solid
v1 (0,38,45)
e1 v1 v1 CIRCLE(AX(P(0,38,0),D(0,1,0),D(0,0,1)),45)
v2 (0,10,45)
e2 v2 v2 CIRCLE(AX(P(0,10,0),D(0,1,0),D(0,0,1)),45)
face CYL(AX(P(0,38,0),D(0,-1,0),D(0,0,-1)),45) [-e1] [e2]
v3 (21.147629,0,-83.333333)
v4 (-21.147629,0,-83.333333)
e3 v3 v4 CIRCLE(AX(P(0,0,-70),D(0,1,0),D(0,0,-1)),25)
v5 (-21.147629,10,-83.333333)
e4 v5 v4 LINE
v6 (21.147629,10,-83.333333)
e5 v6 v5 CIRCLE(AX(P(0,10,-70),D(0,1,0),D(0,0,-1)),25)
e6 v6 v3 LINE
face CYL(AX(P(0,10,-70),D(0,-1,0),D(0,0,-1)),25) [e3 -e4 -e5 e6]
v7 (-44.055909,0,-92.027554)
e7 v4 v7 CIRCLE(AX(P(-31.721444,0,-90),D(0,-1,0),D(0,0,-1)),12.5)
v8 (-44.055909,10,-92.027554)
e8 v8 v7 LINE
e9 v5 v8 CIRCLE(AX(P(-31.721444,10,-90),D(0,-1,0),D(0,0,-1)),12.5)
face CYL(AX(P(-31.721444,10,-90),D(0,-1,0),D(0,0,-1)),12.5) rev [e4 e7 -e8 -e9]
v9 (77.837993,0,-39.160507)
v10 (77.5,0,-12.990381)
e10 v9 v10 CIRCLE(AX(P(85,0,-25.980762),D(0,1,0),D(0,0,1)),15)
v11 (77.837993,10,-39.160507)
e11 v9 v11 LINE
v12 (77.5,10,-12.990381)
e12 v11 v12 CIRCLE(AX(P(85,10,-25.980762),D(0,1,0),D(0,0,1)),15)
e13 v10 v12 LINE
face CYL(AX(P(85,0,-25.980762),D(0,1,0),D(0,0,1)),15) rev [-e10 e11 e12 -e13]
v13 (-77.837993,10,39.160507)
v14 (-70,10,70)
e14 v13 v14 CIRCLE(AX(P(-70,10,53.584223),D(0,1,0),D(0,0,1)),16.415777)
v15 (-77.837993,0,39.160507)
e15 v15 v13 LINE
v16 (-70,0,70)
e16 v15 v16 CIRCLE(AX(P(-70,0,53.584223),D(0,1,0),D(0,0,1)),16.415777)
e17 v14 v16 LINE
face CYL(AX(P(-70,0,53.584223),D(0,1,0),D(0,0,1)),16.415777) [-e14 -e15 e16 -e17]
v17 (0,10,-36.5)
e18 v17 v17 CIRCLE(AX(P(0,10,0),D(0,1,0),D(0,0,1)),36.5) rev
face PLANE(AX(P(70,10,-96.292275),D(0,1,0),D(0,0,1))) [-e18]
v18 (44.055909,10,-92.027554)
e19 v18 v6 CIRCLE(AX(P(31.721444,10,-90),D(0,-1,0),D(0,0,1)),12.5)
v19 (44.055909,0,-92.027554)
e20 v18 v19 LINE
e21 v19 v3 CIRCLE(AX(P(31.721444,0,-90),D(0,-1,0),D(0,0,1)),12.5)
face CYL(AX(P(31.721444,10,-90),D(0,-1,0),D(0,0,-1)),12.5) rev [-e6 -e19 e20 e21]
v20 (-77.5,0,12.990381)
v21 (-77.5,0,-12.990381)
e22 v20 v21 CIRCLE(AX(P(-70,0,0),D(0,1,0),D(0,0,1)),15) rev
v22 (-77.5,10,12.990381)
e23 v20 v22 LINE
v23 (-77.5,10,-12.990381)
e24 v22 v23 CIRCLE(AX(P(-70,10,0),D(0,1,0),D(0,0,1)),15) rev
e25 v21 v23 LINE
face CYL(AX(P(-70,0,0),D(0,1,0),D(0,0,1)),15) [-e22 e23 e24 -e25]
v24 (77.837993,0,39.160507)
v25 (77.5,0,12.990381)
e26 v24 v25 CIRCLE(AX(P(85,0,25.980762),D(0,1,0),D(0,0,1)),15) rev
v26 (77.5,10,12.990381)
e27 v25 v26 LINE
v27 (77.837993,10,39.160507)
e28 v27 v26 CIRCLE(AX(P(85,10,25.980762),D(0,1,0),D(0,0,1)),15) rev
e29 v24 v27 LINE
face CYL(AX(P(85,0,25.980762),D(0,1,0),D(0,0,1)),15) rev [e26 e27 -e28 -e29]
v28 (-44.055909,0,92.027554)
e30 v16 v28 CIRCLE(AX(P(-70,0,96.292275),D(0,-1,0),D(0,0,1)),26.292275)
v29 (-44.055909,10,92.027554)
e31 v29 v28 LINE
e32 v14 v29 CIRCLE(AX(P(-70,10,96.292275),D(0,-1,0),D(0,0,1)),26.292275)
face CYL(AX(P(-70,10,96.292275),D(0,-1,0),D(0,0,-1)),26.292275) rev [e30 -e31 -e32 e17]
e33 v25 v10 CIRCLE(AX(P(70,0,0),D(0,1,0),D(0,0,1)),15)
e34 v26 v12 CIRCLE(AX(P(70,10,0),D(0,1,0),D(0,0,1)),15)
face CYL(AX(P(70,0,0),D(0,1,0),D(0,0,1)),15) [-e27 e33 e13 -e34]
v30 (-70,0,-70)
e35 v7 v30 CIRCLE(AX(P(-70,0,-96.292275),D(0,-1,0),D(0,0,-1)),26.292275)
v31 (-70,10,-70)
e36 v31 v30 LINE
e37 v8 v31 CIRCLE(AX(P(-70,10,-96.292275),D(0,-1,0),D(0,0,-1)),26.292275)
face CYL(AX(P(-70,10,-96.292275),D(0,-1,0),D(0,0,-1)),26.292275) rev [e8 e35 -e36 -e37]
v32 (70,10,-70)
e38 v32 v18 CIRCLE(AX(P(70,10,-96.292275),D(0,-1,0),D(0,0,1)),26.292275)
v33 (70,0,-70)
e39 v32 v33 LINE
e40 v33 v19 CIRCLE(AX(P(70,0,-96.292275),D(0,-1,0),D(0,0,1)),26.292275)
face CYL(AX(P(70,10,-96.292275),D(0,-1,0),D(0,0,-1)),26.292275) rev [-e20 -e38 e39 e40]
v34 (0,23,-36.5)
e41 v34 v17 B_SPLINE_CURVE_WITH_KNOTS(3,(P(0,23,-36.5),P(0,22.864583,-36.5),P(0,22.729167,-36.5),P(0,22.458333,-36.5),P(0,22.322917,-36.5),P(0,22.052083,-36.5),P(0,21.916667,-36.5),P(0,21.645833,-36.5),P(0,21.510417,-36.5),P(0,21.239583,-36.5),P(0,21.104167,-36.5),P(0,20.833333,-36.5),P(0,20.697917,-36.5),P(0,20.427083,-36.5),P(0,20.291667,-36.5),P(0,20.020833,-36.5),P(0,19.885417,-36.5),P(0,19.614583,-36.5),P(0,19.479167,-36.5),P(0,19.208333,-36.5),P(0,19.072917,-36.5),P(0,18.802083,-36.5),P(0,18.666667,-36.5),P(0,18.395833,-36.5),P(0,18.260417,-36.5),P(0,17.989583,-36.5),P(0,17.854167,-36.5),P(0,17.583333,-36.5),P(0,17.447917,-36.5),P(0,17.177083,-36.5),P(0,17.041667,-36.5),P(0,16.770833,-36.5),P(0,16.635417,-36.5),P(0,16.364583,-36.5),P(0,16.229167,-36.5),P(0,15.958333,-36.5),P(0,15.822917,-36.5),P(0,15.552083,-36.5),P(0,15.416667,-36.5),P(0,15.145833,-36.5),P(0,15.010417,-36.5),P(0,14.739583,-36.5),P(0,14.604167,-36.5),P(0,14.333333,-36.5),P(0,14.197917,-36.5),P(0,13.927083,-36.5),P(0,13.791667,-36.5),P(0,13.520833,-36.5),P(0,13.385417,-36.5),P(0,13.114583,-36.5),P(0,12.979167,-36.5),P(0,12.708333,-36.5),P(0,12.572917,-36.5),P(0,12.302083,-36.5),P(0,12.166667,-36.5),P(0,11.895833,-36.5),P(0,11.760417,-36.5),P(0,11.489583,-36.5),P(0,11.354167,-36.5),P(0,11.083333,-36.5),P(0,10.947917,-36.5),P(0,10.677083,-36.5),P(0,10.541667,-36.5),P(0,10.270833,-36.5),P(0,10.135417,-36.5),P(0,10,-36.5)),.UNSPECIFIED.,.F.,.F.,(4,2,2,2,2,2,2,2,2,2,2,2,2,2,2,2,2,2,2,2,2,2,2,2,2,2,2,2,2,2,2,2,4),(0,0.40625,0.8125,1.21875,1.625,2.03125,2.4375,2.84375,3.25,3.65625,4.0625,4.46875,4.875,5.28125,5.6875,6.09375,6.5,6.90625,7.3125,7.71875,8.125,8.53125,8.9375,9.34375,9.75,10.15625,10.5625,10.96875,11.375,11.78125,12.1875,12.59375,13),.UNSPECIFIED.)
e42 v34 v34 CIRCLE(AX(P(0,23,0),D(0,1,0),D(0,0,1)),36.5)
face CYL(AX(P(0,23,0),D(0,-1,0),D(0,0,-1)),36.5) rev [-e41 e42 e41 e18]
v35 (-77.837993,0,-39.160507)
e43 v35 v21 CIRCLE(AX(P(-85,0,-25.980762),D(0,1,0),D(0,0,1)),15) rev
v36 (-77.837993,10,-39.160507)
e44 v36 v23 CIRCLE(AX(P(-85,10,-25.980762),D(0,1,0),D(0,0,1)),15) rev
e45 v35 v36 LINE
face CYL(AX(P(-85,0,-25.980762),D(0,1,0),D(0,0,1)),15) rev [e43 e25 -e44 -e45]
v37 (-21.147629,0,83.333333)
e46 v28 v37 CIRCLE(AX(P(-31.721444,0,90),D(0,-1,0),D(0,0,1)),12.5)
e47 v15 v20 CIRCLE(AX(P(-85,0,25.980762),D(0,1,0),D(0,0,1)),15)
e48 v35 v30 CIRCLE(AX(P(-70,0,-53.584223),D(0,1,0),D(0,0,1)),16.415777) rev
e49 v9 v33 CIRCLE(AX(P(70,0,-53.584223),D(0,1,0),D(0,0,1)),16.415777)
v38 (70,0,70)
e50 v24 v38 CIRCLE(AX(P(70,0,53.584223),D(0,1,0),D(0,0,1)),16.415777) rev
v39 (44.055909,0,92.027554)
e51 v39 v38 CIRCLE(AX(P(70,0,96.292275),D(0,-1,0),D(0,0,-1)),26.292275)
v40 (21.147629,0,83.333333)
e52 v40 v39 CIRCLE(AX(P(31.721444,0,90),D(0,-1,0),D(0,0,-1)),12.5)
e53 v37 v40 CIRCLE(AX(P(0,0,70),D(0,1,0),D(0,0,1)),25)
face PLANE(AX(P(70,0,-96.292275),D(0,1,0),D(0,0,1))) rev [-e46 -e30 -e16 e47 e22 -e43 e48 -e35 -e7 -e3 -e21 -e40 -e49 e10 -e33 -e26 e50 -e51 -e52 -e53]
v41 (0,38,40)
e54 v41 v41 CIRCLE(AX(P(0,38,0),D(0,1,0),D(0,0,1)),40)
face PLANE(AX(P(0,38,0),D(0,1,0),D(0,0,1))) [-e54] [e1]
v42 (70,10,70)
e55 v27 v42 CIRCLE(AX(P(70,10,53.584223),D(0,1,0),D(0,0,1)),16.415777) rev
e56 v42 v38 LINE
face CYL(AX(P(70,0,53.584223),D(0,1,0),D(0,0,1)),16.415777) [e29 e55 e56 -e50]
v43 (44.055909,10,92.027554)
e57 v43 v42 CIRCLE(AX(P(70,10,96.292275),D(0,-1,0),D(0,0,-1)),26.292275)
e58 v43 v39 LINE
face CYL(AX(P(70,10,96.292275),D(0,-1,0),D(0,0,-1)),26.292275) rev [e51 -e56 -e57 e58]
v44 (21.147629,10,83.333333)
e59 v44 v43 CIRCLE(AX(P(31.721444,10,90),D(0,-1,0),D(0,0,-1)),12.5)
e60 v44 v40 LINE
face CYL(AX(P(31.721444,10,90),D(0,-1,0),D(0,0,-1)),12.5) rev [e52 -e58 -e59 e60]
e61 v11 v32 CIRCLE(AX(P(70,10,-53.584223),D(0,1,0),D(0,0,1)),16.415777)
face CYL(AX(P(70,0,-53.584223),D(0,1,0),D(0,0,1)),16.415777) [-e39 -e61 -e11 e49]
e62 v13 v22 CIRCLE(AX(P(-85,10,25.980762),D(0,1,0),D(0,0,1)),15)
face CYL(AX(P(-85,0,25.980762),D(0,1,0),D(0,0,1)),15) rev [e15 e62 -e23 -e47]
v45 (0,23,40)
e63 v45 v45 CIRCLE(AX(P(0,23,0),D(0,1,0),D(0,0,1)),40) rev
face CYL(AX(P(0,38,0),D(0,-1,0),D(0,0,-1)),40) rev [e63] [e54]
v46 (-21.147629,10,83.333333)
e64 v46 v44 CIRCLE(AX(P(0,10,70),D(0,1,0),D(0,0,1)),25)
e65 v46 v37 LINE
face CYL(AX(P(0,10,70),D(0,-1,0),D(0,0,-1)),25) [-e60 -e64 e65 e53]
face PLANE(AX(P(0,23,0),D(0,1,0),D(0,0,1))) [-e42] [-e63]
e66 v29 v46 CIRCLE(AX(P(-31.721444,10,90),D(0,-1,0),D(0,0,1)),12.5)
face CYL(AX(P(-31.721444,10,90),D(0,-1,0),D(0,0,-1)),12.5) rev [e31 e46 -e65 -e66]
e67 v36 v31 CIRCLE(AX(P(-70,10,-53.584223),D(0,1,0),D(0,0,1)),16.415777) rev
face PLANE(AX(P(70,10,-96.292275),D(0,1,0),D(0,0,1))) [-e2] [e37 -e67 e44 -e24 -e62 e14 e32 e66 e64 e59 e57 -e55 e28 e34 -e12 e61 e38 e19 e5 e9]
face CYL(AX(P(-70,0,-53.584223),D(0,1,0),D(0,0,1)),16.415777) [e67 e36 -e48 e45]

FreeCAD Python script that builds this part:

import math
import FreeCAD as App
import Part
import Sketcher
from FreeCAD import Vector

doc = App.newDocument("Part")
body = doc.addObject("PartDesign::Body", "Body")

# Sketch on XZ plane
sketch1 = doc.addObject("Sketcher::SketchObject", "Sketch")
body.addObject(sketch1)
sketch1.AttachmentSupport = (doc.XZ_Plane, [""])
sketch1.MapMode = "FlatFace"
sketch1.addGeometry(Part.LineSegment(Vector(-70, -70, 0), Vector(-70, 70, 0)), False)
sketch1.addGeometry(Part.ArcOfCircle(Part.Circle(Vector(-70, 96.292275, 0), Vector(0, 0, 1), 26.292275), math.radians(-90), math.radians(-9.334866)), False)
sketch1.addGeometry(Part.ArcOfCircle(Part.Circle(Vector(-31.721444, 90, 0), Vector(0, 0, 1), 12.5), math.radians(170.665134), math.radians(327.769047)), False)
sketch1.addGeometry(Part.ArcOfCircle(Part.Circle(Vector(0, 70, 0), Vector(0, 0, 1), 25), math.radians(32.230953), math.radians(147.769047)), False)
sketch1.addGeometry(Part.ArcOfCircle(Part.Circle(Vector(31.721444, 90, 0), Vector(0, 0, 1), 12.5), math.radians(-147.769047), math.radians(9.334866)), False)
sketch1.addGeometry(Part.ArcOfCircle(Part.Circle(Vector(70, 96.292275, 0), Vector(0, 0, 1), 26.292275), math.radians(-170.665134), math.radians(-90)), False)
sketch1.addGeometry(Part.LineSegment(Vector(70, 70, 0), Vector(70, -70, 0)), False)
sketch1.addGeometry(Part.ArcOfCircle(Part.Circle(Vector(70, -96.292275, 0), Vector(0, 0, 1), 26.292275), math.radians(90), math.radians(170.665134)), False)
sketch1.addGeometry(Part.ArcOfCircle(Part.Circle(Vector(31.721444, -90, 0), Vector(0, 0, 1), 12.5), math.radians(-9.334866), math.radians(147.769047)), False)
sketch1.addGeometry(Part.ArcOfCircle(Part.Circle(Vector(0, -70, 0), Vector(0, 0, 1), 25), math.radians(-147.769047), math.radians(-32.230953)), False)
sketch1.addGeometry(Part.ArcOfCircle(Part.Circle(Vector(-31.721444, -90, 0), Vector(0, 0, 1), 12.5), math.radians(32.230953), math.radians(189.334866)), False)
sketch1.addGeometry(Part.ArcOfCircle(Part.Circle(Vector(-70, -96.292275, 0), Vector(0, 0, 1), 26.292275), math.radians(9.334866), math.radians(90)), False)
sketch1.addConstraint(Sketcher.Constraint("Coincident", 0, 2, 1, 1))
sketch1.addConstraint(Sketcher.Constraint("Tangent", 1, 2, 2, 1))
sketch1.addConstraint(Sketcher.Constraint("Tangent", 2, 2, 3, 2))
sketch1.addConstraint(Sketcher.Constraint("Tangent", 3, 1, 4, 1))
sketch1.addConstraint(Sketcher.Constraint("Tangent", 4, 2, 5, 1))
sketch1.addConstraint(Sketcher.Constraint("Coincident", 5, 2, 6, 1))
sketch1.addConstraint(Sketcher.Constraint("Coincident", 6, 2, 7, 1))
sketch1.addConstraint(Sketcher.Constraint("Tangent", 7, 2, 8, 1))
sketch1.addConstraint(Sketcher.Constraint("Tangent", 8, 2, 9, 2))
sketch1.addConstraint(Sketcher.Constraint("Tangent", 9, 1, 10, 1))
sketch1.addConstraint(Sketcher.Constraint("Tangent", 10, 2, 11, 1))
sketch1.addConstraint(Sketcher.Constraint("Coincident", 11, 2, 0, 1))
sketch1.addConstraint(Sketcher.Constraint("Vertical", 0))
sketch1.addConstraint(Sketcher.Constraint("Vertical", 6))
sketch1.addConstraint(Sketcher.Constraint("Equal", 2, 4))
sketch1.addConstraint(Sketcher.Constraint("Equal", 1, 5))
sketch1.addConstraint(Sketcher.Constraint("Equal", 5, 7))
sketch1.addConstraint(Sketcher.Constraint("Equal", 4, 8))
sketch1.addConstraint(Sketcher.Constraint("Equal", 3, 9))
sketch1.addConstraint(Sketcher.Constraint("Equal", 8, 10))
sketch1.addConstraint(Sketcher.Constraint("Equal", 7, 11))
sketch1.addConstraint(Sketcher.Constraint("Symmetric", 1, 3, 7, 3, -1, 1))
sketch1.addConstraint(Sketcher.Constraint("Symmetric", 3, 3, 9, 3, -1, 1))
sketch1.addConstraint(Sketcher.Constraint("Symmetric", 5, 3, 11, 3, -1, 1))
sketch1.addConstraint(Sketcher.Constraint("Symmetric", 2, 3, 4, 3, -2))
sketch1.addConstraint(Sketcher.Constraint("Symmetric", 0, 2, 5, 2, -2))
sketch1.addConstraint(Sketcher.Constraint("Horizontal", 3, 3, 0, 2))
sketch1.addConstraint(Sketcher.Constraint("Vertical", 11, 3, 0, 2))
sketch1.addConstraint(Sketcher.Constraint("Radius", 3, 25.0))
sketch1.addConstraint(Sketcher.Constraint("Radius", 2, 12.5))
sketch1.addConstraint(Sketcher.Constraint("DistanceY", 0, 1, 0, 2, 140.0))
sketch1.addConstraint(Sketcher.Constraint("DistanceX", 1, 3, -1, 1, 70.0))
sketch1.addConstraint(Sketcher.Constraint("DistanceY", -1, 1, 2, 3, 90.0))
pad1 = doc.addObject("PartDesign::Pad", "Pad")
body.addObject(pad1)
pad1.Profile = sketch1
pad1.Length = 10
pad1.Reversed = True

# Sketch on XZ plane
sketch2 = doc.addObject("Sketcher::SketchObject", "Sketch001")
body.addObject(sketch2)
sketch2.AttachmentSupport = (doc.XZ_Plane, [""])
sketch2.MapMode = "FlatFace"
sketch2.AttachmentOffset = App.Placement(Vector(0, 0, -10), App.Rotation())
sketch2.addGeometry(Part.LineSegment(Vector(-70, -25.980762, 0), Vector(-70, -70, 0)), False)
sketch2.addGeometry(Part.ArcOfCircle(Part.Circle(Vector(-70, -53.584223, 0), Vector(0, 0, 1), 16.415777), math.radians(118.520105), math.radians(270)), False)
sketch2.addGeometry(Part.ArcOfCircle(Part.Circle(Vector(-85, -25.980762, 0), Vector(0, 0, 1), 15), math.radians(-61.479895), math.radians(0.000001)), False)
sketch2.addGeometry(Part.ArcOfCircle(Part.Circle(Vector(70, -53.584223, 0), Vector(0, 0, 1), 16.415777), math.radians(-90), math.radians(61.479895)), False)
sketch2.addGeometry(Part.LineSegment(Vector(70, -70, 0), Vector(70, -25.980762, 0)), False)
sketch2.addGeometry(Part.ArcOfCircle(Part.Circle(Vector(85, -25.980762, 0), Vector(0, 0, 1), 15), math.radians(-180), math.radians(-118.520105)), False)
sketch2.addGeometry(Part.ArcOfCircle(Part.Circle(Vector(85, -25.980762, 0), Vector(0, 0, 1), 15), math.radians(120), math.radians(180)), False)
sketch2.addGeometry(Part.LineSegment(Vector(70, -25.980762, 0), Vector(70, 25.980762, 0)), False)
sketch2.addGeometry(Part.ArcOfCircle(Part.Circle(Vector(85, 25.980762, 0), Vector(0, 0, 1), 15), math.radians(180), math.radians(240)), False)
sketch2.addGeometry(Part.ArcOfCircle(Part.Circle(Vector(70, 0, 0), Vector(0, 0, 1), 15), math.radians(-60), math.radians(60)), False)
sketch2.addGeometry(Part.LineSegment(Vector(-70, 25.980762, 0), Vector(-70, -25.980762, 0)), False)
sketch2.addGeometry(Part.ArcOfCircle(Part.Circle(Vector(-85, -25.980762, 0), Vector(0, 0, 1), 15), math.radians(0.000001), math.radians(60)), False)
sketch2.addGeometry(Part.ArcOfCircle(Part.Circle(Vector(-70, 0, 0), Vector(0, 0, 1), 15), math.radians(120), math.radians(240)), False)
sketch2.addGeometry(Part.ArcOfCircle(Part.Circle(Vector(-85, 25.980762, 0), Vector(0, 0, 1), 15), math.radians(-60), math.radians(0)), False)
sketch2.addGeometry(Part.LineSegment(Vector(-70, 70, 0), Vector(-70, 25.980762, 0)), False)
sketch2.addGeometry(Part.ArcOfCircle(Part.Circle(Vector(-85, 25.980762, 0), Vector(0, 0, 1), 15), math.radians(0), math.radians(61.479895)), False)
sketch2.addGeometry(Part.ArcOfCircle(Part.Circle(Vector(-70, 53.584223, 0), Vector(0, 0, 1), 16.415777), math.radians(90), math.radians(241.479895)), False)
sketch2.addGeometry(Part.ArcOfCircle(Part.Circle(Vector(85, 25.980762, 0), Vector(0, 0, 1), 15), math.radians(118.520105), math.radians(180)), False)
sketch2.addGeometry(Part.LineSegment(Vector(70, 25.980762, 0), Vector(70, 70, 0)), False)
sketch2.addGeometry(Part.ArcOfCircle(Part.Circle(Vector(70, 53.584223, 0), Vector(0, 0, 1), 16.415777), math.radians(-61.479895), math.radians(90)), False)
sketch2.addConstraint(Sketcher.Constraint("Coincident", 0, 2, 1, 2))
sketch2.addConstraint(Sketcher.Constraint("Tangent", 1, 1, 2, 1))
sketch2.addConstraint(Sketcher.Constraint("Tangent", 2, 2, 0, 1))
sketch2.addConstraint(Sketcher.Constraint("Coincident", 3, 1, 4, 1))
sketch2.addConstraint(Sketcher.Constraint("Tangent", 4, 2, 5, 1))
sketch2.addConstraint(Sketcher.Constraint("Tangent", 5, 2, 3, 2))
sketch2.addConstraint(Sketcher.Constraint("Tangent", 6, 2, 7, 1))
sketch2.addConstraint(Sketcher.Constraint("Tangent", 7, 2, 8, 1))
sketch2.addConstraint(Sketcher.Constraint("Tangent", 8, 2, 9, 2))
sketch2.addConstraint(Sketcher.Constraint("Tangent", 9, 1, 6, 1))
sketch2.addConstraint(Sketcher.Constraint("Tangent", 10, 2, 11, 1))
sketch2.addConstraint(Sketcher.Constraint("Tangent", 11, 2, 12, 2))
sketch2.addConstraint(Sketcher.Constraint("Tangent", 12, 1, 13, 1))
sketch2.addConstraint(Sketcher.Constraint("Tangent", 13, 2, 10, 1))
sketch2.addConstraint(Sketcher.Constraint("Tangent", 14, 2, 15, 1))
sketch2.addConstraint(Sketcher.Constraint("Tangent", 15, 2, 16, 2))
sketch2.addConstraint(Sketcher.Constraint("Coincident", 16, 1, 14, 1))
sketch2.addConstraint(Sketcher.Constraint("Tangent", 17, 2, 18, 1))
sketch2.addConstraint(Sketcher.Constraint("Coincident", 18, 2, 19, 2))
sketch2.addConstraint(Sketcher.Constraint("Tangent", 19, 1, 17, 1))
sketch2.addConstraint(Sketcher.Constraint("Vertical", 0))
sketch2.addConstraint(Sketcher.Constraint("Vertical", 4))
sketch2.addConstraint(Sketcher.Constraint("Vertical", 7))
sketch2.addConstraint(Sketcher.Constraint("Vertical", 10))
sketch2.addConstraint(Sketcher.Constraint("Vertical", 14))
sketch2.addConstraint(Sketcher.Constraint("Vertical", 18))
sketch2.addConstraint(Sketcher.Constraint("Coincident", 6, 3, 5, 3))
sketch2.addConstraint(Sketcher.Constraint("Coincident", 11, 3, 2, 3))
sketch2.addConstraint(Sketcher.Constraint("Coincident", 15, 3, 13, 3))
sketch2.addConstraint(Sketcher.Constraint("Coincident", 17, 3, 8, 3))
sketch2.addConstraint(Sketcher.Constraint("Equal", 1, 3))
sketch2.addConstraint(Sketcher.Constraint("Equal", 2, 5))
sketch2.addConstraint(Sketcher.Constraint("Equal", 5, 6))
sketch2.addConstraint(Sketcher.Constraint("Equal", 6, 8))
sketch2.addConstraint(Sketcher.Constraint("Equal", 8, 9))
sketch2.addConstraint(Sketcher.Constraint("Equal", 9, 11))
sketch2.addConstraint(Sketcher.Constraint("Equal", 11, 12))
sketch2.addConstraint(Sketcher.Constraint("Equal", 12, 13))
sketch2.addConstraint(Sketcher.Constraint("Equal", 13, 15))
sketch2.addConstraint(Sketcher.Constraint("Equal", 3, 16))
sketch2.addConstraint(Sketcher.Constraint("Equal", 15, 17))
sketch2.addConstraint(Sketcher.Constraint("Equal", 16, 19))
sketch2.addConstraint(Sketcher.Constraint("Symmetric", 2, 3, 8, 3, -1, 1))
sketch2.addConstraint(Sketcher.Constraint("Symmetric", 3, 3, 16, 3, -1, 1))
sketch2.addConstraint(Sketcher.Constraint("Symmetric", 1, 3, 3, 3, -2))
sketch2.addConstraint(Sketcher.Constraint("Horizontal", 16, 3, 19, 3))
sketch2.addConstraint(Sketcher.Constraint("Vertical", 3, 3, 9, 3))
sketch2.addConstraint(Sketcher.Constraint("Vertical", 16, 3, 0, 2))
sketch2.addConstraint(Sketcher.Constraint("Radius", 2, 15.0))
sketch2.addConstraint(Sketcher.Constraint("DistanceX", 1, 3, -1, 1, 70.0))
sketch2.addConstraint(Sketcher.Constraint("DistanceY", 0, 2, -1, 1, 70.0))
pad2 = doc.addObject("PartDesign::Pad", "Pad001")
body.addObject(pad2)
pad2.Profile = sketch2
pad2.Length = 10

# Sketch on XZ plane
sketch3 = doc.addObject("Sketcher::SketchObject", "Sketch002")
body.addObject(sketch3)
sketch3.AttachmentSupport = (doc.XZ_Plane, [""])
sketch3.MapMode = "FlatFace"
sketch3.AttachmentOffset = App.Placement(Vector(0, 0, -10), App.Rotation())
sketch3.addGeometry(Part.Circle(Vector(0, 0, 0), Vector(0, 0, 1), 40), False)
sketch3.addGeometry(Part.Circle(Vector(0, 0, 0), Vector(0, 0, 1), 36.5), False)
sketch3.addConstraint(Sketcher.Constraint("Coincident", 0, 3, -1, 1))
sketch3.addConstraint(Sketcher.Constraint("Coincident", 1, 3, -1, 1))
sketch3.addConstraint(Sketcher.Constraint("Diameter", 0, 80.0))
sketch3.addConstraint(Sketcher.Constraint("Diameter", 1, 73.0))
pad3 = doc.addObject("PartDesign::Pad", "Pad002")
body.addObject(pad3)
pad3.Profile = sketch3
pad3.Length = 13
pad3.Reversed = True

# Sketch on XZ plane
sketch4 = doc.addObject("Sketcher::SketchObject", "Sketch003")
body.addObject(sketch4)
sketch4.AttachmentSupport = (doc.XZ_Plane, [""])
sketch4.MapMode = "FlatFace"
sketch4.AttachmentOffset = App.Placement(Vector(0, 0, -10), App.Rotation())
sketch4.addGeometry(Part.Circle(Vector(0, 0, 0), Vector(0, 0, 1), 45), False)
sketch4.addGeometry(Part.Circle(Vector(0, 0, 0), Vector(0, 0, 1), 40), False)
sketch4.addConstraint(Sketcher.Constraint("Coincident", 0, 3, -1, 1))
sketch4.addConstraint(Sketcher.Constraint("Coincident", 1, 3, -1, 1))
sketch4.addConstraint(Sketcher.Constraint("Diameter", 0, 90.0))
sketch4.addConstraint(Sketcher.Constraint("Diameter", 1, 80.0))
pad4 = doc.addObject("PartDesign::Pad", "Pad003")
body.addObject(pad4)
pad4.Profile = sketch4
pad4.Length = 28
pad4.Reversed = True

doc.recompute()
